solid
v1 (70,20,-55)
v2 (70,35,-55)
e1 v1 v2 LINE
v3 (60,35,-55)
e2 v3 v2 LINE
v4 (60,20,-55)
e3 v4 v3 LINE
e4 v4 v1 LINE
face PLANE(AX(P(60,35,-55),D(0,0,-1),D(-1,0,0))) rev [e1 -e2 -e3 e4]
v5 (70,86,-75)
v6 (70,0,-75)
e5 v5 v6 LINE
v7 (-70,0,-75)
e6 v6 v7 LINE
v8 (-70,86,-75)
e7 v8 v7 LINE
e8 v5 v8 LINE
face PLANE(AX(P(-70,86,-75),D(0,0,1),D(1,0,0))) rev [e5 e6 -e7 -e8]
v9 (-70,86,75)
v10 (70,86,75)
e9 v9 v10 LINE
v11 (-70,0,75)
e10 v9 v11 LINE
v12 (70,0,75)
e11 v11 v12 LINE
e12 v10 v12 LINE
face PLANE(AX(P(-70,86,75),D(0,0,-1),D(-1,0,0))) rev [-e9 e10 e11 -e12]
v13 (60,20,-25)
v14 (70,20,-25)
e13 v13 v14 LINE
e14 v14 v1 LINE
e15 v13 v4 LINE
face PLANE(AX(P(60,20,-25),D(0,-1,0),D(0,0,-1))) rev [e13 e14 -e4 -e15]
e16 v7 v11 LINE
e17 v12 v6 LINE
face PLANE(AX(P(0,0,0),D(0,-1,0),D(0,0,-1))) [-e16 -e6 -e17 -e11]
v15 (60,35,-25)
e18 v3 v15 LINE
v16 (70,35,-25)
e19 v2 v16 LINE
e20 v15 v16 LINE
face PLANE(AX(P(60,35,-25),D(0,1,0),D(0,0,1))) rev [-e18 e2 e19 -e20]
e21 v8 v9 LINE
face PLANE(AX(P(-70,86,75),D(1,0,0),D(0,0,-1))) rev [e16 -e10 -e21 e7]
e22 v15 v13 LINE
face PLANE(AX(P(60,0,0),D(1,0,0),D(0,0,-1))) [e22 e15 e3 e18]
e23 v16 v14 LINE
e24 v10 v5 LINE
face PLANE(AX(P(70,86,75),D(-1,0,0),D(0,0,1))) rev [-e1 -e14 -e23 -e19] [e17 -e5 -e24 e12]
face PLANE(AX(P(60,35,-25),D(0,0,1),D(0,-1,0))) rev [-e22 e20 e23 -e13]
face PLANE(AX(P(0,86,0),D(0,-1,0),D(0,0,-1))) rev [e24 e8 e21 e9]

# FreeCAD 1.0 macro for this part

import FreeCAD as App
import Part
import Sketcher


def add_polygon(sketch, points):
    """Adds a closed chain of lines whose ends are joined by coincident constraints."""
    first, n = sketch.GeometryCount, len(points)
    for a, b in zip(points, points[1:] + points[:1]):
        sketch.addGeometry(Part.LineSegment(App.Vector(*a, 0), App.Vector(*b, 0)), False)
    for i in range(n):
        sketch.addConstraint(Sketcher.Constraint("Coincident", first + i, 2, first + (i + 1) % n, 1))

doc = App.newDocument("Part")
body = doc.addObject("PartDesign::Body", "Body")

sketch1 = doc.addObject("Sketcher::SketchObject", "Sketch")
body.addObject(sketch1)
sketch1.AttachmentSupport = (doc.XZ_Plane, [""])
sketch1.MapMode = "FlatFace"
add_polygon(sketch1, [(-70, -75), (-70, 75), (70, 75), (70, -75)])
sketch1.addConstraint([
    Sketcher.Constraint("Vertical", 0),
    Sketcher.Constraint("Horizontal", 1),
    Sketcher.Constraint("Vertical", 2),
    Sketcher.Constraint("Horizontal", 3),
    Sketcher.Constraint("Symmetric", 0, 2, 2, 2, -1, 1),
    Sketcher.Constraint("DistanceX", 1, 1, 1, 2, 140.0),
    Sketcher.Constraint("DistanceY", 0, 1, 0, 2, 150.0),
])
pad1 = doc.addObject("PartDesign::Pad", "Pad")
body.addObject(pad1)
pad1.Profile = sketch1
pad1.Length = 86
pad1.Reversed = True

sketch2 = doc.addObject("Sketcher::SketchObject", "Sketch001")
body.addObject(sketch2)
sketch2.AttachmentSupport = (doc.YZ_Plane, [""])
sketch2.MapMode = "FlatFace"
sketch2.AttachmentOffset = App.Placement(App.Vector(0, 0, 70), App.Rotation())
add_polygon(sketch2, [(35, -25), (20, -25), (20, -55), (35, -55)])
sketch2.addConstraint([
    Sketcher.Constraint("Horizontal", 0),
    Sketcher.Constraint("Vertical", 1),
    Sketcher.Constraint("Horizontal", 2),
    Sketcher.Constraint("Vertical", 3),
    Sketcher.Constraint("DistanceX", 0, 2, 0, 1, 15.0),
    Sketcher.Constraint("DistanceY", 1, 2, 1, 1, 30.0),
    Sketcher.Constraint("DistanceX", -1, 1, 0, 2, 20.0),
    Sketcher.Constraint("DistanceY", 0, 2, -1, 1, 25.0),
])
pocket1 = doc.addObject("PartDesign::Pocket", "Pocket")
body.addObject(pocket1)
pocket1.Profile = sketch2
pocket1.Length = 10

doc.recompute()
